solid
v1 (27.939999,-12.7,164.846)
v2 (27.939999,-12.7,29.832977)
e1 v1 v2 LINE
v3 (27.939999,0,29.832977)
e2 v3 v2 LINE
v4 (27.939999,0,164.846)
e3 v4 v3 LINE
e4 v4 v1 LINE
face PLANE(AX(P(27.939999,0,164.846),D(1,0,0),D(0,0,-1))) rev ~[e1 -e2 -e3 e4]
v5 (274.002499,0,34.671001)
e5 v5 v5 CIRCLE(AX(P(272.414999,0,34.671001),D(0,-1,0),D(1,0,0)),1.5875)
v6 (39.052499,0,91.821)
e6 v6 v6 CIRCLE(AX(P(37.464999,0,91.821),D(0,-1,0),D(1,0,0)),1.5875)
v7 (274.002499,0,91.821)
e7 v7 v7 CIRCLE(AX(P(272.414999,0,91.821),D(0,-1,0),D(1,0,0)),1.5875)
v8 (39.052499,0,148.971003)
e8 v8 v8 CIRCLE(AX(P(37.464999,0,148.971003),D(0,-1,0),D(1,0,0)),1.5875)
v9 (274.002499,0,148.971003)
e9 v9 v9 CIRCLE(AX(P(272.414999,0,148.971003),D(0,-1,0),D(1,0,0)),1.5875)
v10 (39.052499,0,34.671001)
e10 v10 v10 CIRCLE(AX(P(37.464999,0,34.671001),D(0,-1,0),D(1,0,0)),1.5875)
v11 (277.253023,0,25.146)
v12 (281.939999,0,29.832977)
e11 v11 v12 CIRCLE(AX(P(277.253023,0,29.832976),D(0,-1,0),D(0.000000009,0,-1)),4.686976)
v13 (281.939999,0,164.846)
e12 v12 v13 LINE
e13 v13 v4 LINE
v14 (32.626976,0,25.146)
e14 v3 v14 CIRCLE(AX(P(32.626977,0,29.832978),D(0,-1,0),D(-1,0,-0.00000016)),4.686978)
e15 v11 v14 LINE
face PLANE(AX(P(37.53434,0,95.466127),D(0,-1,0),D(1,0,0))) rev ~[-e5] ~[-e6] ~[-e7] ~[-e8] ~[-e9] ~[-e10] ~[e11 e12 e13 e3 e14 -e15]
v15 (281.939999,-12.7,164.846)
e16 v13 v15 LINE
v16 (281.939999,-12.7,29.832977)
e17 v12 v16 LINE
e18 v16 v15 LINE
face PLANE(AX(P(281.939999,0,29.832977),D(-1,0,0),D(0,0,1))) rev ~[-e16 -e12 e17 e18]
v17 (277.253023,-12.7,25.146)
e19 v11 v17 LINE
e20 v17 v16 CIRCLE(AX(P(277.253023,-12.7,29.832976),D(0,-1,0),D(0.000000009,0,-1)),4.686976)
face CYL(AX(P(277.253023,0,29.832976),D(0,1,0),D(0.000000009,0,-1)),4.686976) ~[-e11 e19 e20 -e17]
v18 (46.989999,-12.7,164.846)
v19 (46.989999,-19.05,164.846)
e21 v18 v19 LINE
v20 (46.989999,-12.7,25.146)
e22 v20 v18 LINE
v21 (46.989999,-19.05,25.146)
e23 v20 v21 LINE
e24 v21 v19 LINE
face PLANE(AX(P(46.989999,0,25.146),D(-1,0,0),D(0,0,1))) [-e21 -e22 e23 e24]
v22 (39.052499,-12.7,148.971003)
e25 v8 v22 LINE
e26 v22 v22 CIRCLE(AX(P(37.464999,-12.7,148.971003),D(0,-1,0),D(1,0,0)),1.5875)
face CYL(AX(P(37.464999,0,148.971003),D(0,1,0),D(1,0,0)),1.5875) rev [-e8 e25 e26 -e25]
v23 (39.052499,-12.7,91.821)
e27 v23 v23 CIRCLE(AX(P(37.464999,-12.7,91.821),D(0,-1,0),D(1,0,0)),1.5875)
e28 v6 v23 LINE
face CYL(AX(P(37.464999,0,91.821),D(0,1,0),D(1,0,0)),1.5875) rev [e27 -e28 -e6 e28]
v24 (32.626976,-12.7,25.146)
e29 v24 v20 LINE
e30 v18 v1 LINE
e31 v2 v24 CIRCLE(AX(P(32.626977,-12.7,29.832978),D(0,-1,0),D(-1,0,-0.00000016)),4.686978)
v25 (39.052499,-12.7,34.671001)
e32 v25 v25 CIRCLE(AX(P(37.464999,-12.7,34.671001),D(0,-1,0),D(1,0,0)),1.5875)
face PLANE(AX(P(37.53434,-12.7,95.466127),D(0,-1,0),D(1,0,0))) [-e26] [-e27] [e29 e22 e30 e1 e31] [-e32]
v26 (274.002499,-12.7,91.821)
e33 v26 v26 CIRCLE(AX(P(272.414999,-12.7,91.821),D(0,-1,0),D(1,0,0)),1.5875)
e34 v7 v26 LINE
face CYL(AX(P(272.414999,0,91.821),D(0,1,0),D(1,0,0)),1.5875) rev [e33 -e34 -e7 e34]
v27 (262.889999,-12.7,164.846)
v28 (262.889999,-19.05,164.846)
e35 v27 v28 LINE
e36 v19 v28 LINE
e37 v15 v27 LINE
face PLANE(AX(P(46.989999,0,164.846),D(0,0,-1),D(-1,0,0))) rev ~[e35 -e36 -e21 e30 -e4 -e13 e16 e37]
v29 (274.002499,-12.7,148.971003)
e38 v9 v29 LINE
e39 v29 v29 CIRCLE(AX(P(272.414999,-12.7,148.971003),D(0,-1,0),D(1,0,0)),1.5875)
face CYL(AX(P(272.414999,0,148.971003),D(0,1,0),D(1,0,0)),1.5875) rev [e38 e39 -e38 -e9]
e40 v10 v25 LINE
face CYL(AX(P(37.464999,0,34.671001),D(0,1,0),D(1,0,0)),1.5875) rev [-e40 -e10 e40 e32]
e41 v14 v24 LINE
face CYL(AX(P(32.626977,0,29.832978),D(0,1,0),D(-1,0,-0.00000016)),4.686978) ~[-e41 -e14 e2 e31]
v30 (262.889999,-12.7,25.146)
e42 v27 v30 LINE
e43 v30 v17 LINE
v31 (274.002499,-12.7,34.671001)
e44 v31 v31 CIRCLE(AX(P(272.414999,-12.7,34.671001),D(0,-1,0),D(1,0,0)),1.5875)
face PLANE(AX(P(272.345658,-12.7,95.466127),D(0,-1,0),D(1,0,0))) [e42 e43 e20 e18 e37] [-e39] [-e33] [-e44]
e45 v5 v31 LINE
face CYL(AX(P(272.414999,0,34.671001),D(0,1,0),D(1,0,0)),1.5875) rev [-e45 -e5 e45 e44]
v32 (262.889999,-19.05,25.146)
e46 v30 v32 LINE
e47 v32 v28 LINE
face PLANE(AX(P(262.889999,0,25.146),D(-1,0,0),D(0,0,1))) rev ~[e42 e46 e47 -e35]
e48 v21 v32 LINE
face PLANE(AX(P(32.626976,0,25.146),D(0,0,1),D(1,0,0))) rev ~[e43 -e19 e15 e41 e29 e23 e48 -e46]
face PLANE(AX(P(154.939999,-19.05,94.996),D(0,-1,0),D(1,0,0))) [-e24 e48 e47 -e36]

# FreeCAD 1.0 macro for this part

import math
import FreeCAD as App
import Part
import Sketcher
Q = App.Units.Quantity

doc = App.newDocument("Part")
body = doc.addObject("PartDesign::Body", "Body")

sketch1 = doc.addObject("Sketcher::SketchObject", "Sketch")
body.addObject(sketch1)
sketch1.AttachmentSupport = (doc.XZ_Plane, [""])
sketch1.MapMode = "FlatFace"
sketch1.addGeometry(Part.LineSegment(App.Vector(47, 165, 0), App.Vector(47, 25, 0)), False)
sketch1.addGeometry(Part.LineSegment(App.Vector(47, 25, 0), App.Vector(263, 25, 0)), False)
sketch1.addGeometry(Part.LineSegment(App.Vector(263, 25, 0), App.Vector(263, 165, 0)), False)
sketch1.addGeometry(Part.LineSegment(App.Vector(263, 165, 0), App.Vector(47, 165, 0)), False)
sketch1.addConstraint(Sketcher.Constraint("Coincident", 0, 2, 1, 1))
sketch1.addConstraint(Sketcher.Constraint("Coincident", 1, 2, 2, 1))
sketch1.addConstraint(Sketcher.Constraint("Coincident", 2, 2, 3, 1))
sketch1.addConstraint(Sketcher.Constraint("Coincident", 3, 2, 0, 1))
sketch1.addConstraint(Sketcher.Constraint("Vertical", 0))
sketch1.addConstraint(Sketcher.Constraint("Horizontal", 1))
sketch1.addConstraint(Sketcher.Constraint("Vertical", 2))
sketch1.addConstraint(Sketcher.Constraint("Horizontal", 3))
sketch1.addConstraint(Sketcher.Constraint("DistanceX", 1, 1, 1, 2, Q("8.5 in")))
sketch1.addConstraint(Sketcher.Constraint("DistanceY", 0, 2, 0, 1, Q("5.5 in")))
sketch1.addConstraint(Sketcher.Constraint("DistanceX", -1, 1, 0, 2, Q("1.85 in")))
sketch1.addConstraint(Sketcher.Constraint("DistanceY", -1, 1, 0, 2, Q("0.99 in")))
pad1 = doc.addObject("PartDesign::Pad", "Pad")
body.addObject(pad1)
pad1.Profile = sketch1
pad1.Length = Q("0.75 in")

sketch2 = doc.addObject("Sketcher::SketchObject", "Sketch001")
body.addObject(sketch2)
sketch2.AttachmentSupport = (doc.XZ_Plane, [""])
sketch2.MapMode = "FlatFace"
sketch2.addGeometry(Part.LineSegment(App.Vector(47, 164.8, 0), App.Vector(27.9, 164.8, 0)), False)
sketch2.addGeometry(Part.LineSegment(App.Vector(27.9, 164.8, 0), App.Vector(27.9, 29.8, 0)), False)
sketch2.addGeometry(Part.ArcOfCircle(Part.Circle(App.Vector(32.6, 29.8, 0), App.Vector(0, 0, 1), 4.7), math.radians(-180), math.radians(-90)), False)
sketch2.addGeometry(Part.LineSegment(App.Vector(32.6, 25.1, 0), App.Vector(47, 25.1, 0)), False)
sketch2.addGeometry(Part.LineSegment(App.Vector(47, 25.1, 0), App.Vector(47, 164.8, 0)), False)
sketch2.addGeometry(Part.Circle(App.Vector(37.5, 34.7, 0), App.Vector(0, 0, 1), 1.6), False)
sketch2.addGeometry(Part.Circle(App.Vector(37.5, 91.8, 0), App.Vector(0, 0, 1), 1.6), False)
sketch2.addGeometry(Part.Circle(App.Vector(37.5, 149, 0), App.Vector(0, 0, 1), 1.6), False)
sketch2.addGeometry(Part.LineSegment(App.Vector(281.9, 164.8, 0), App.Vector(262.9, 164.8, 0)), False)
sketch2.addGeometry(Part.LineSegment(App.Vector(262.9, 164.8, 0), App.Vector(262.9, 25.1, 0)), False)
sketch2.addGeometry(Part.LineSegment(App.Vector(262.9, 25.1, 0), App.Vector(277.3, 25.1, 0)), False)
sketch2.addGeometry(Part.ArcOfCircle(Part.Circle(App.Vector(277.3, 29.8, 0), App.Vector(0, 0, 1), 4.7), math.radians(-90), math.radians(0)), False)
sketch2.addGeometry(Part.LineSegment(App.Vector(281.9, 29.8, 0), App.Vector(281.9, 164.8, 0)), False)
sketch2.addGeometry(Part.Circle(App.Vector(272.4, 34.7, 0), App.Vector(0, 0, 1), 1.6), False)
sketch2.addGeometry(Part.Circle(App.Vector(272.4, 91.8, 0), App.Vector(0, 0, 1), 1.6), False)
sketch2.addGeometry(Part.Circle(App.Vector(272.4, 149, 0), App.Vector(0, 0, 1), 1.6), False)
sketch2.addConstraint(Sketcher.Constraint("Coincident", 0, 2, 1, 1))
sketch2.addConstraint(Sketcher.Constraint("Tangent", 1, 2, 2, 1))
sketch2.addConstraint(Sketcher.Constraint("Tangent", 2, 2, 3, 1))
sketch2.addConstraint(Sketcher.Constraint("Coincident", 3, 2, 4, 1))
sketch2.addConstraint(Sketcher.Constraint("Coincident", 4, 2, 0, 1))
sketch2.addConstraint(Sketcher.Constraint("Coincident", 8, 2, 9, 1))
sketch2.addConstraint(Sketcher.Constraint("Coincident", 9, 2, 10, 1))
sketch2.addConstraint(Sketcher.Constraint("Tangent", 10, 2, 11, 1))
sketch2.addConstraint(Sketcher.Constraint("Tangent", 11, 2, 12, 1))
sketch2.addConstraint(Sketcher.Constraint("Coincident", 12, 2, 8, 1))
sketch2.addConstraint(Sketcher.Constraint("Horizontal", 0))
sketch2.addConstraint(Sketcher.Constraint("Vertical", 1))
sketch2.addConstraint(Sketcher.Constraint("Horizontal", 3))
sketch2.addConstraint(Sketcher.Constraint("Vertical", 4))
sketch2.addConstraint(Sketcher.Constraint("Horizontal", 8))
sketch2.addConstraint(Sketcher.Constraint("Vertical", 9))
sketch2.addConstraint(Sketcher.Constraint("Horizontal", 10))
sketch2.addConstraint(Sketcher.Constraint("Vertical", 12))
sketch2.addConstraint(Sketcher.Constraint("Equal", 5, 6))
sketch2.addConstraint(Sketcher.Constraint("Equal", 6, 7))
sketch2.addConstraint(Sketcher.Constraint("Equal", 2, 11))
sketch2.addConstraint(Sketcher.Constraint("Equal", 7, 13))
sketch2.addConstraint(Sketcher.Constraint("Equal", 13, 14))
sketch2.addConstraint(Sketcher.Constraint("Equal", 14, 15))
sketch2.addConstraint(Sketcher.Constraint("Horizontal", 2, 3, 11, 3))
sketch2.addConstraint(Sketcher.Constraint("Horizontal", 5, 3, 13, 3))
sketch2.addConstraint(Sketcher.Constraint("Horizontal", 6, 3, 14, 3))
sketch2.addConstraint(Sketcher.Constraint("Horizontal", 7, 3, 15, 3))
sketch2.addConstraint(Sketcher.Constraint("Horizontal", 4, 2, 8, 2))
sketch2.addConstraint(Sketcher.Constraint("Vertical", 5, 3, 6, 3))
sketch2.addConstraint(Sketcher.Constraint("Vertical", 6, 3, 7, 3))
sketch2.addConstraint(Sketcher.Constraint("Vertical", 13, 3, 14, 3))
sketch2.addConstraint(Sketcher.Constraint("Vertical", 14, 3, 15, 3))
sketch2.addConstraint(Sketcher.Constraint("Equal", 0, 8))
sketch2.addConstraint(Sketcher.Constraint("Diameter", 5, Q("0.125 in")))
sketch2.addConstraint(Sketcher.Constraint("DistanceY", 4, 1, 4, 2, Q("5.5 in")))
sketch2.addConstraint(Sketcher.Constraint("DistanceX", 0, 2, 0, 1, Q("0.75 in")))
sketch2.addConstraint(Sketcher.Constraint("DistanceX", -1, 1, 0, 2, Q("1.1 in")))
sketch2.addConstraint(Sketcher.Constraint("DistanceX", -1, 1, 11, 2, Q("11.1 in")))
sketch2.addConstraint(Sketcher.Constraint("DistanceY", 5, 3, 7, 3, Q("4.5000001 in")))
sketch2.addConstraint(Sketcher.Constraint("DistanceY", -1, 1, 0, 2, Q("6.49 in")))
sketch2.addConstraint(Sketcher.Constraint("DistanceY", 5, 3, 6, 3, Q("2.25 in")))
sketch2.addConstraint(Sketcher.Constraint("DistanceX", 5, 3, 13, 3, Q("9.25 in")))
sketch2.addConstraint(Sketcher.Constraint("DistanceX", -1, 1, 5, 3, Q("1.475 in")))
sketch2.addConstraint(Sketcher.Constraint("DistanceY", -1, 1, 5, 3, Q("1.365 in")))
sketch2.addConstraint(Sketcher.Constraint("Radius", 2, Q("4.686978 mm")))
pad2 = doc.addObject("PartDesign::Pad", "Pad001")
body.addObject(pad2)
pad2.Profile = sketch2
pad2.Length = Q("0.5 in")

doc.recompute()
